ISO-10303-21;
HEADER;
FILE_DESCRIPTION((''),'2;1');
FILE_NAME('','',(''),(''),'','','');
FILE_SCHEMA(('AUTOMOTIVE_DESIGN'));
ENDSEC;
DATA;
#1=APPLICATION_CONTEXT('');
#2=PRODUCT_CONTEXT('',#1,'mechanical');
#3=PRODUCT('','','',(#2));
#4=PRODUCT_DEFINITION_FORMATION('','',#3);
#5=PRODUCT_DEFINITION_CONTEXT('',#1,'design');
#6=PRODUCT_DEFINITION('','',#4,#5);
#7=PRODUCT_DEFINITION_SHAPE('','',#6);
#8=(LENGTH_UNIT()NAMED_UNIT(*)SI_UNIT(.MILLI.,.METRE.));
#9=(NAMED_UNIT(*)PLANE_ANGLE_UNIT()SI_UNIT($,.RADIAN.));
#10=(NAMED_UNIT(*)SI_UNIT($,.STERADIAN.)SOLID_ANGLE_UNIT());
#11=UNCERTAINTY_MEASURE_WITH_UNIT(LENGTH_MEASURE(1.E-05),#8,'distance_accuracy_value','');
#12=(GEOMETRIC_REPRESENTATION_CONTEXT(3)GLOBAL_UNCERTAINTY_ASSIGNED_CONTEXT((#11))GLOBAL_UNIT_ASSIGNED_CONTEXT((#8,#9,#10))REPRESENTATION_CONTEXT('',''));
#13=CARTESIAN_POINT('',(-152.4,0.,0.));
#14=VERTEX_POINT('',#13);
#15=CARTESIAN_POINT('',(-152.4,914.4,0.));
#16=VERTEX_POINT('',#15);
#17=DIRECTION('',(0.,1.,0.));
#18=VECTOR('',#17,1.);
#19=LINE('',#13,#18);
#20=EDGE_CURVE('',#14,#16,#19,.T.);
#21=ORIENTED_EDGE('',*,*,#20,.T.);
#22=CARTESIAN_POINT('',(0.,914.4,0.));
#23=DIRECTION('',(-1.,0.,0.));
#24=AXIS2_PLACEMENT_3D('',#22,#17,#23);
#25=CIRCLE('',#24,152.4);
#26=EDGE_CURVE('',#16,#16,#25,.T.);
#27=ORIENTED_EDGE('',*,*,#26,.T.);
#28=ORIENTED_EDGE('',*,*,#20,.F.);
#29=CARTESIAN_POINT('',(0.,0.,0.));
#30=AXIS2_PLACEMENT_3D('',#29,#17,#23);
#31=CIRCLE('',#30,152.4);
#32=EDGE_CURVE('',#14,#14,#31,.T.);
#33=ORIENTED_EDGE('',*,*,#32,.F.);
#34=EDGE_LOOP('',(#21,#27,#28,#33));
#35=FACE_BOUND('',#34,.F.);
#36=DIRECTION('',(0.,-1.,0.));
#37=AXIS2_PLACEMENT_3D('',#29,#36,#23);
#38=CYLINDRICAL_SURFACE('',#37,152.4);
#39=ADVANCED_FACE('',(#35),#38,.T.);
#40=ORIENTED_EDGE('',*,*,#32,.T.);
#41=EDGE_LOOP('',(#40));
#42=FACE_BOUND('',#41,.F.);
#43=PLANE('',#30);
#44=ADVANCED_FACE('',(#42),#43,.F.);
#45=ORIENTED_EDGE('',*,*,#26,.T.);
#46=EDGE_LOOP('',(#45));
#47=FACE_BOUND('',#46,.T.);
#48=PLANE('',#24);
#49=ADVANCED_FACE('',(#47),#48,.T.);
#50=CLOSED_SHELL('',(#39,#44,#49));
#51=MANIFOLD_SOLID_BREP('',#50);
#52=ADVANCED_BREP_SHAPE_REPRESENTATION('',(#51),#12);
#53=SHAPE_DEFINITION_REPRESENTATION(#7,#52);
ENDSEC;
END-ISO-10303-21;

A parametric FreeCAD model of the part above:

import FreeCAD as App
import Part
import Sketcher

V = App.Vector
Q = App.Units.Quantity

doc = App.newDocument("Part")
body = doc.addObject("PartDesign::Body", "Body")

sketch1 = body.newObject("Sketcher::SketchObject", "Sketch")
sketch1.AttachmentSupport = (doc.getObject("XZ_Plane"), [""])
sketch1.MapMode = "FlatFace"
sketch1.addGeometry(Part.Circle(V(0, 0, 0), V(0, 0, 1), 152), False)
sketch1.addConstraint([
    Sketcher.Constraint("Coincident", 0, 3, -1, 1),
    Sketcher.Constraint("Diameter", 0, Q("12 in")),
])
pad1 = body.newObject("PartDesign::Pad", "Pad")
pad1.Profile = sketch1
pad1.Length = Q("36 in")
pad1.Reversed = True

doc.recompute()
